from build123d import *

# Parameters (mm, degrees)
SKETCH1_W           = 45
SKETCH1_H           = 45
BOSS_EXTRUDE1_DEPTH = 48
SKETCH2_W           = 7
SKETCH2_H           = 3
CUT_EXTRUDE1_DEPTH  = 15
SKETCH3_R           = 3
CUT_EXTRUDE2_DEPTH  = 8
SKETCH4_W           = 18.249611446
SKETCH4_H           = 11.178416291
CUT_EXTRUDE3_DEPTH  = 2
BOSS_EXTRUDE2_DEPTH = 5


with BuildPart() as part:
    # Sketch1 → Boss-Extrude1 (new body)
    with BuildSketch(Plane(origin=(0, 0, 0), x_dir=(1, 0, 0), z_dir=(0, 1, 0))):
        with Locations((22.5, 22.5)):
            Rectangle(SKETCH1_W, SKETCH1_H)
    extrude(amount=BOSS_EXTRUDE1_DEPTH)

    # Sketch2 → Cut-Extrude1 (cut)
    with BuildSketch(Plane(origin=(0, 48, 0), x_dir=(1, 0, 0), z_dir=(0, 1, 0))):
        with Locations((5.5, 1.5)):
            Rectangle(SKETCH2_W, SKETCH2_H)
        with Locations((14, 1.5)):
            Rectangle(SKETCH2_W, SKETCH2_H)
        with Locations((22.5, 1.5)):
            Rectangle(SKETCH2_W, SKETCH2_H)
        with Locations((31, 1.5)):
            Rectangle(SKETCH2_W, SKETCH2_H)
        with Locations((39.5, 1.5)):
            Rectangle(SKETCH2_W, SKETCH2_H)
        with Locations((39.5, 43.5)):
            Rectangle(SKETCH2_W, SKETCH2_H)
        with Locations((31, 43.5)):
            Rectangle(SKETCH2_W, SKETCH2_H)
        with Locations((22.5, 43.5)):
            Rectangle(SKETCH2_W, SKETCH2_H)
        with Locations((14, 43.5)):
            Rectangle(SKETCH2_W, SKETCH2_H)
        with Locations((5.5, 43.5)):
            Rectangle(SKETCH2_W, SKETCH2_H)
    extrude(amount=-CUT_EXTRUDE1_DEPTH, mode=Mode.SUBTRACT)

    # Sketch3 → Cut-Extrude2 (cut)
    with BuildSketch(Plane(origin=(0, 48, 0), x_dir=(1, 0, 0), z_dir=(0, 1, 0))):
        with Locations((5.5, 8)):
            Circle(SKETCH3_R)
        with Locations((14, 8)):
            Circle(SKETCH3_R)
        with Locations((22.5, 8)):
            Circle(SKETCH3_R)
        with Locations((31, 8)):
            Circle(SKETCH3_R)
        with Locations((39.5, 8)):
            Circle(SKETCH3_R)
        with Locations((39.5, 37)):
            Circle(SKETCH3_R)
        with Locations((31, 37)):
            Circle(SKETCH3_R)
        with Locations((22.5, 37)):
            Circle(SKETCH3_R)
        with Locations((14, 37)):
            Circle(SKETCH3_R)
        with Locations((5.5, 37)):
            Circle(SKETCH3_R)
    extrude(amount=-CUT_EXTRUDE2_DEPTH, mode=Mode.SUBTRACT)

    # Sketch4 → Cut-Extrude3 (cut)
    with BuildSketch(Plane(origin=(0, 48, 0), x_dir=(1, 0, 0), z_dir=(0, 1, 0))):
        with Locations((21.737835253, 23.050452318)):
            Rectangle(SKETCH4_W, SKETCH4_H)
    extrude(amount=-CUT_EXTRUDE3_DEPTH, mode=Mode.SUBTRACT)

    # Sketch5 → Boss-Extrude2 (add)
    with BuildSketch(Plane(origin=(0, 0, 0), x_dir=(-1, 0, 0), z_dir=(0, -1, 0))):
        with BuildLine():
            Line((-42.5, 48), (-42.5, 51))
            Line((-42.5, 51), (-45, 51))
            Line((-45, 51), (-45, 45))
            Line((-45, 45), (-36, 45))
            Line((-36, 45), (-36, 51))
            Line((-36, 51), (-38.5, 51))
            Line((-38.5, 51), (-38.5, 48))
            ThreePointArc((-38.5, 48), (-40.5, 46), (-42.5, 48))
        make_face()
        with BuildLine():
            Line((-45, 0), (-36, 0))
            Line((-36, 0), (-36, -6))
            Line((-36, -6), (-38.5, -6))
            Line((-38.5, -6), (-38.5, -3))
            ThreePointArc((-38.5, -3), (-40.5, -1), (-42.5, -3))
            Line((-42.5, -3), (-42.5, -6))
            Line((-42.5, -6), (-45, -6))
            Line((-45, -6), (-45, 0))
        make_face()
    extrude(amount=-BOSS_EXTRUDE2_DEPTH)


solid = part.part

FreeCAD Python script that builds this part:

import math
import FreeCAD as App
import Part
import Sketcher

doc = App.newDocument("Part")
body = doc.addObject("PartDesign::Body", "Body")

# Sketch on XZ plane
sketch1 = body.newObject("Sketcher::SketchObject", "Sketch")
sketch1.AttachmentSupport = (doc.getObject("XZ_Plane"), [""])
sketch1.MapMode = "FlatFace"
sketch1.addGeometry(Part.LineSegment(App.Vector(0, -45, 0), App.Vector(0, 0, 0)), False)
sketch1.addGeometry(Part.LineSegment(App.Vector(0, 0, 0), App.Vector(45, 0, 0)), False)
sketch1.addGeometry(Part.LineSegment(App.Vector(45, 0, 0), App.Vector(45, -45, 0)), False)
sketch1.addGeometry(Part.LineSegment(App.Vector(45, -45, 0), App.Vector(0, -45, 0)), False)
sketch1.addConstraint(Sketcher.Constraint("Coincident", 0, 2, 1, 1))
sketch1.addConstraint(Sketcher.Constraint("Coincident", 1, 2, 2, 1))
sketch1.addConstraint(Sketcher.Constraint("Coincident", 2, 2, 3, 1))
sketch1.addConstraint(Sketcher.Constraint("Coincident", 3, 2, 0, 1))
sketch1.addConstraint(Sketcher.Constraint("Vertical", 0))
sketch1.addConstraint(Sketcher.Constraint("Horizontal", 1))
sketch1.addConstraint(Sketcher.Constraint("Vertical", 2))
sketch1.addConstraint(Sketcher.Constraint("Horizontal", 3))
sketch1.addConstraint(Sketcher.Constraint("Coincident", 0, 2, -1, 1))
sketch1.addConstraint(Sketcher.Constraint("Equal", 3, 0))
sketch1.addConstraint(Sketcher.Constraint("DistanceX", 1, 1, 1, 2, 45.0))
pad1 = body.newObject("PartDesign::Pad", "Pad")
pad1.Profile = sketch1
pad1.Length = 48
pad1.Reversed = True

# Sketch on XZ plane
sketch2 = body.newObject("Sketcher::SketchObject", "Sketch001")
sketch2.AttachmentSupport = (doc.getObject("XZ_Plane"), [""])
sketch2.MapMode = "FlatFace"
sketch2.AttachmentOffset = App.Placement(App.Vector(0, 0, -48), App.Rotation())
sketch2.addGeometry(Part.LineSegment(App.Vector(2, -3, 0), App.Vector(2, 0, 0)), False)
sketch2.addGeometry(Part.LineSegment(App.Vector(2, 0, 0), App.Vector(9, 0, 0)), False)
sketch2.addGeometry(Part.LineSegment(App.Vector(9, 0, 0), App.Vector(9, -3, 0)), False)
sketch2.addGeometry(Part.LineSegment(App.Vector(9, -3, 0), App.Vector(2, -3, 0)), False)
sketch2.addGeometry(Part.LineSegment(App.Vector(10.5, -3, 0), App.Vector(10.5, 0, 0)), False)
sketch2.addGeometry(Part.LineSegment(App.Vector(10.5, 0, 0), App.Vector(17.5, 0, 0)), False)
sketch2.addGeometry(Part.LineSegment(App.Vector(17.5, 0, 0), App.Vector(17.5, -3, 0)), False)
sketch2.addGeometry(Part.LineSegment(App.Vector(17.5, -3, 0), App.Vector(10.5, -3, 0)), False)
sketch2.addGeometry(Part.LineSegment(App.Vector(19, -3, 0), App.Vector(19, 0, 0)), False)
sketch2.addGeometry(Part.LineSegment(App.Vector(19, 0, 0), App.Vector(26, 0, 0)), False)
sketch2.addGeometry(Part.LineSegment(App.Vector(26, 0, 0), App.Vector(26, -3, 0)), False)
sketch2.addGeometry(Part.LineSegment(App.Vector(26, -3, 0), App.Vector(19, -3, 0)), False)
sketch2.addGeometry(Part.LineSegment(App.Vector(27.5, -3, 0), App.Vector(27.5, 0, 0)), False)
sketch2.addGeometry(Part.LineSegment(App.Vector(27.5, 0, 0), App.Vector(34.5, 0, 0)), False)
sketch2.addGeometry(Part.LineSegment(App.Vector(34.5, 0, 0), App.Vector(34.5, -3, 0)), False)
sketch2.addGeometry(Part.LineSegment(App.Vector(34.5, -3, 0), App.Vector(27.5, -3, 0)), False)
sketch2.addGeometry(Part.LineSegment(App.Vector(36, -3, 0), App.Vector(36, 0, 0)), False)
sketch2.addGeometry(Part.LineSegment(App.Vector(36, 0, 0), App.Vector(43, 0, 0)), False)
sketch2.addGeometry(Part.LineSegment(App.Vector(43, 0, 0), App.Vector(43, -3, 0)), False)
sketch2.addGeometry(Part.LineSegment(App.Vector(43, -3, 0), App.Vector(36, -3, 0)), False)
sketch2.addGeometry(Part.LineSegment(App.Vector(36, -45, 0), App.Vector(36, -42, 0)), False)
sketch2.addGeometry(Part.LineSegment(App.Vector(36, -42, 0), App.Vector(43, -42, 0)), False)
sketch2.addGeometry(Part.LineSegment(App.Vector(43, -42, 0), App.Vector(43, -45, 0)), False)
sketch2.addGeometry(Part.LineSegment(App.Vector(43, -45, 0), App.Vector(36, -45, 0)), False)
sketch2.addGeometry(Part.LineSegment(App.Vector(27.5, -45, 0), App.Vector(27.5, -42, 0)), False)
sketch2.addGeometry(Part.LineSegment(App.Vector(27.5, -42, 0), App.Vector(34.5, -42, 0)), False)
sketch2.addGeometry(Part.LineSegment(App.Vector(34.5, -42, 0), App.Vector(34.5, -45, 0)), False)
sketch2.addGeometry(Part.LineSegment(App.Vector(34.5, -45, 0), App.Vector(27.5, -45, 0)), False)
sketch2.addGeometry(Part.LineSegment(App.Vector(19, -45, 0), App.Vector(19, -42, 0)), False)
sketch2.addGeometry(Part.LineSegment(App.Vector(19, -42, 0), App.Vector(26, -42, 0)), False)
sketch2.addGeometry(Part.LineSegment(App.Vector(26, -42, 0), App.Vector(26, -45, 0)), False)
sketch2.addGeometry(Part.LineSegment(App.Vector(26, -45, 0), App.Vector(19, -45, 0)), False)
sketch2.addGeometry(Part.LineSegment(App.Vector(10.5, -45, 0), App.Vector(10.5, -42, 0)), False)
sketch2.addGeometry(Part.LineSegment(App.Vector(10.5, -42, 0), App.Vector(17.5, -42, 0)), False)
sketch2.addGeometry(Part.LineSegment(App.Vector(17.5, -42, 0), App.Vector(17.5, -45, 0)), False)
sketch2.addGeometry(Part.LineSegment(App.Vector(17.5, -45, 0), App.Vector(10.5, -45, 0)), False)
sketch2.addGeometry(Part.LineSegment(App.Vector(2, -45, 0), App.Vector(2, -42, 0)), False)
sketch2.addGeometry(Part.LineSegment(App.Vector(2, -42, 0), App.Vector(9, -42, 0)), False)
sketch2.addGeometry(Part.LineSegment(App.Vector(9, -42, 0), App.Vector(9, -45, 0)), False)
sketch2.addGeometry(Part.LineSegment(App.Vector(9, -45, 0), App.Vector(2, -45, 0)), False)
sketch2.addConstraint(Sketcher.Constraint("Coincident", 0, 2, 1, 1))
sketch2.addConstraint(Sketcher.Constraint("Coincident", 1, 2, 2, 1))
sketch2.addConstraint(Sketcher.Constraint("Coincident", 2, 2, 3, 1))
sketch2.addConstraint(Sketcher.Constraint("Coincident", 3, 2, 0, 1))
sketch2.addConstraint(Sketcher.Constraint("Coincident", 4, 2, 5, 1))
sketch2.addConstraint(Sketcher.Constraint("Coincident", 5, 2, 6, 1))
sketch2.addConstraint(Sketcher.Constraint("Coincident", 6, 2, 7, 1))
sketch2.addConstraint(Sketcher.Constraint("Coincident", 7, 2, 4, 1))
sketch2.addConstraint(Sketcher.Constraint("Coincident", 8, 2, 9, 1))
sketch2.addConstraint(Sketcher.Constraint("Coincident", 9, 2, 10, 1))
sketch2.addConstraint(Sketcher.Constraint("Coincident", 10, 2, 11, 1))
sketch2.addConstraint(Sketcher.Constraint("Coincident", 11, 2, 8, 1))
sketch2.addConstraint(Sketcher.Constraint("Coincident", 12, 2, 13, 1))
sketch2.addConstraint(Sketcher.Constraint("Coincident", 13, 2, 14, 1))
sketch2.addConstraint(Sketcher.Constraint("Coincident", 14, 2, 15, 1))
sketch2.addConstraint(Sketcher.Constraint("Coincident", 15, 2, 12, 1))
sketch2.addConstraint(Sketcher.Constraint("Coincident", 16, 2, 17, 1))
sketch2.addConstraint(Sketcher.Constraint("Coincident", 17, 2, 18, 1))
sketch2.addConstraint(Sketcher.Constraint("Coincident", 18, 2, 19, 1))
sketch2.addConstraint(Sketcher.Constraint("Coincident", 19, 2, 16, 1))
sketch2.addConstraint(Sketcher.Constraint("Coincident", 20, 2, 21, 1))
sketch2.addConstraint(Sketcher.Constraint("Coincident", 21, 2, 22, 1))
sketch2.addConstraint(Sketcher.Constraint("Coincident", 22, 2, 23, 1))
sketch2.addConstraint(Sketcher.Constraint("Coincident", 23, 2, 20, 1))
sketch2.addConstraint(Sketcher.Constraint("Coincident", 24, 2, 25, 1))
sketch2.addConstraint(Sketcher.Constraint("Coincident", 25, 2, 26, 1))
sketch2.addConstraint(Sketcher.Constraint("Coincident", 26, 2, 27, 1))
sketch2.addConstraint(Sketcher.Constraint("Coincident", 27, 2, 24, 1))
sketch2.addConstraint(Sketcher.Constraint("Coincident", 28, 2, 29, 1))
sketch2.addConstraint(Sketcher.Constraint("Coincident", 29, 2, 30, 1))
sketch2.addConstraint(Sketcher.Constraint("Coincident", 30, 2, 31, 1))
sketch2.addConstraint(Sketcher.Constraint("Coincident", 31, 2, 28, 1))
sketch2.addConstraint(Sketcher.Constraint("Coincident", 32, 2, 33, 1))
sketch2.addConstraint(Sketcher.Constraint("Coincident", 33, 2, 34, 1))
sketch2.addConstraint(Sketcher.Constraint("Coincident", 34, 2, 35, 1))
sketch2.addConstraint(Sketcher.Constraint("Coincident", 35, 2, 32, 1))
sketch2.addConstraint(Sketcher.Constraint("Coincident", 36, 2, 37, 1))
sketch2.addConstraint(Sketcher.Constraint("Coincident", 37, 2, 38, 1))
sketch2.addConstraint(Sketcher.Constraint("Coincident", 38, 2, 39, 1))
sketch2.addConstraint(Sketcher.Constraint("Coincident", 39, 2, 36, 1))
sketch2.addConstraint(Sketcher.Constraint("Vertical", 0))
sketch2.addConstraint(Sketcher.Constraint("Horizontal", 1))
sketch2.addConstraint(Sketcher.Constraint("Vertical", 2))
sketch2.addConstraint(Sketcher.Constraint("Horizontal", 3))
sketch2.addConstraint(Sketcher.Constraint("Vertical", 4))
sketch2.addConstraint(Sketcher.Constraint("Horizontal", 5))
sketch2.addConstraint(Sketcher.Constraint("Vertical", 6))
sketch2.addConstraint(Sketcher.Constraint("Horizontal", 7))
sketch2.addConstraint(Sketcher.Constraint("Vertical", 8))
sketch2.addConstraint(Sketcher.Constraint("Horizontal", 9))
sketch2.addConstraint(Sketcher.Constraint("Vertical", 10))
sketch2.addConstraint(Sketcher.Constraint("Horizontal", 11))
sketch2.addConstraint(Sketcher.Constraint("Vertical", 12))
sketch2.addConstraint(Sketcher.Constraint("Horizontal", 13))
sketch2.addConstraint(Sketcher.Constraint("Vertical", 14))
sketch2.addConstraint(Sketcher.Constraint("Horizontal", 15))
sketch2.addConstraint(Sketcher.Constraint("Vertical", 16))
sketch2.addConstraint(Sketcher.Constraint("Horizontal", 17))
sketch2.addConstraint(Sketcher.Constraint("Vertical", 18))
sketch2.addConstraint(Sketcher.Constraint("Horizontal", 19))
sketch2.addConstraint(Sketcher.Constraint("Vertical", 20))
sketch2.addConstraint(Sketcher.Constraint("Horizontal", 21))
sketch2.addConstraint(Sketcher.Constraint("Vertical", 22))
sketch2.addConstraint(Sketcher.Constraint("Horizontal", 23))
sketch2.addConstraint(Sketcher.Constraint("Vertical", 24))
sketch2.addConstraint(Sketcher.Constraint("Horizontal", 25))
sketch2.addConstraint(Sketcher.Constraint("Vertical", 26))
sketch2.addConstraint(Sketcher.Constraint("Horizontal", 27))
sketch2.addConstraint(Sketcher.Constraint("Vertical", 28))
sketch2.addConstraint(Sketcher.Constraint("Horizontal", 29))
sketch2.addConstraint(Sketcher.Constraint("Vertical", 30))
sketch2.addConstraint(Sketcher.Constraint("Horizontal", 31))
sketch2.addConstraint(Sketcher.Constraint("Vertical", 32))
sketch2.addConstraint(Sketcher.Constraint("Horizontal", 33))
sketch2.addConstraint(Sketcher.Constraint("Vertical", 34))
sketch2.addConstraint(Sketcher.Constraint("Horizontal", 35))
sketch2.addConstraint(Sketcher.Constraint("Vertical", 36))
sketch2.addConstraint(Sketcher.Constraint("Horizontal", 37))
sketch2.addConstraint(Sketcher.Constraint("Vertical", 38))
sketch2.addConstraint(Sketcher.Constraint("Horizontal", 39))
sketch2.addConstraint(Sketcher.Constraint("PointOnObject", 0, 2, -1))
sketch2.addConstraint(Sketcher.Constraint("PointOnObject", 4, 2, -1))
sketch2.addConstraint(Sketcher.Constraint("PointOnObject", 8, 2, -1))
sketch2.addConstraint(Sketcher.Constraint("PointOnObject", 12, 2, -1))
sketch2.addConstraint(Sketcher.Constraint("PointOnObject", 16, 2, -1))
sketch2.addConstraint(Sketcher.Constraint("Horizontal", 3, 2, 6, 2))
sketch2.addConstraint(Sketcher.Constraint("Horizontal", 7, 2, 10, 2))
sketch2.addConstraint(Sketcher.Constraint("Horizontal", 11, 2, 14, 2))
sketch2.addConstraint(Sketcher.Constraint("Horizontal", 15, 2, 18, 2))
sketch2.addConstraint(Sketcher.Constraint("Horizontal", 21, 2, 24, 2))
sketch2.addConstraint(Sketcher.Constraint("Horizontal", 23, 2, 26, 2))
sketch2.addConstraint(Sketcher.Constraint("Horizontal", 25, 2, 28, 2))
sketch2.addConstraint(Sketcher.Constraint("Horizontal", 27, 2, 30, 2))
sketch2.addConstraint(Sketcher.Constraint("Horizontal", 29, 2, 32, 2))
sketch2.addConstraint(Sketcher.Constraint("Horizontal", 31, 2, 34, 2))
sketch2.addConstraint(Sketcher.Constraint("Horizontal", 33, 2, 36, 2))
sketch2.addConstraint(Sketcher.Constraint("Horizontal", 35, 2, 38, 2))
sketch2.addConstraint(Sketcher.Constraint("Vertical", 19, 2, 20, 2))
sketch2.addConstraint(Sketcher.Constraint("Vertical", 18, 2, 21, 2))
sketch2.addConstraint(Sketcher.Constraint("Vertical", 15, 2, 24, 2))
sketch2.addConstraint(Sketcher.Constraint("Vertical", 14, 2, 25, 2))
sketch2.addConstraint(Sketcher.Constraint("Vertical", 11, 2, 28, 2))
sketch2.addConstraint(Sketcher.Constraint("Vertical", 10, 2, 29, 2))
sketch2.addConstraint(Sketcher.Constraint("Vertical", 7, 2, 32, 2))
sketch2.addConstraint(Sketcher.Constraint("Vertical", 6, 2, 33, 2))
sketch2.addConstraint(Sketcher.Constraint("Vertical", 3, 2, 36, 2))
sketch2.addConstraint(Sketcher.Constraint("Vertical", 2, 2, 37, 2))
sketch2.addConstraint(Sketcher.Constraint("Equal", 3, 5))
sketch2.addConstraint(Sketcher.Constraint("Equal", 7, 9))
sketch2.addConstraint(Sketcher.Constraint("Equal", 11, 13))
sketch2.addConstraint(Sketcher.Constraint("Equal", 15, 17))
sketch2.addConstraint(Sketcher.Constraint("Equal", 18, 20))
sketch2.addConstraint(Sketcher.Constraint("DistanceX", 1, 1, 1, 2, 7.0))
sketch2.addConstraint(Sketcher.Constraint("DistanceY", 0, 1, 0, 2, 3.0))
sketch2.addConstraint(Sketcher.Constraint("DistanceX", -1, 1, 0, 2, 2.0))
sketch2.addConstraint(Sketcher.Constraint("DistanceX", -1, 1, 8, 2, 19.0))
sketch2.addConstraint(Sketcher.Constraint("DistanceX", -1, 1, 16, 2, 36.0))
sketch2.addConstraint(Sketcher.Constraint("DistanceY", 20, 2, -1, 1, 42.0))
sketch2.addConstraint(Sketcher.Constraint("DistanceX", 5, 2, 12, 2, 10.0))
sketch2.addConstraint(Sketcher.Constraint("DistanceX", -1, 1, 4, 2, 10.5))
pocket1 = body.newObject("PartDesign::Pocket", "Pocket")
pocket1.Profile = sketch2
pocket1.Length = 15
pocket1.Reversed = True

# Sketch on XZ plane
sketch3 = body.newObject("Sketcher::SketchObject", "Sketch002")
sketch3.AttachmentSupport = (doc.getObject("XZ_Plane"), [""])
sketch3.MapMode = "FlatFace"
sketch3.AttachmentOffset = App.Placement(App.Vector(0, 0, -48), App.Rotation())
sketch3.addGeometry(Part.Circle(App.Vector(5.5, -8, 0), App.Vector(0, 0, 1), 3), False)
sketch3.addGeometry(Part.Circle(App.Vector(14, -8, 0), App.Vector(0, 0, 1), 3), False)
sketch3.addGeometry(Part.Circle(App.Vector(22.5, -8, 0), App.Vector(0, 0, 1), 3), False)
sketch3.addGeometry(Part.Circle(App.Vector(31, -8, 0), App.Vector(0, 0, 1), 3), False)
sketch3.addGeometry(Part.Circle(App.Vector(39.5, -8, 0), App.Vector(0, 0, 1), 3), False)
sketch3.addGeometry(Part.Circle(App.Vector(39.5, -37, 0), App.Vector(0, 0, 1), 3), False)
sketch3.addGeometry(Part.Circle(App.Vector(31, -37, 0), App.Vector(0, 0, 1), 3), False)
sketch3.addGeometry(Part.Circle(App.Vector(22.5, -37, 0), App.Vector(0, 0, 1), 3), False)
sketch3.addGeometry(Part.Circle(App.Vector(14, -37, 0), App.Vector(0, 0, 1), 3), False)
sketch3.addGeometry(Part.Circle(App.Vector(5.5, -37, 0), App.Vector(0, 0, 1), 3), False)
sketch3.addConstraint(Sketcher.Constraint("Equal", 0, 1))
sketch3.addConstraint(Sketcher.Constraint("Equal", 1, 2))
sketch3.addConstraint(Sketcher.Constraint("Equal", 2, 3))
sketch3.addConstraint(Sketcher.Constraint("Equal", 3, 4))
sketch3.addConstraint(Sketcher.Constraint("Equal", 4, 5))
sketch3.addConstraint(Sketcher.Constraint("Equal", 5, 6))
sketch3.addConstraint(Sketcher.Constraint("Equal", 6, 7))
sketch3.addConstraint(Sketcher.Constraint("Equal", 7, 8))
sketch3.addConstraint(Sketcher.Constraint("Equal", 8, 9))
sketch3.addConstraint(Sketcher.Constraint("Horizontal", 0, 3, 1, 3))
sketch3.addConstraint(Sketcher.Constraint("Horizontal", 1, 3, 2, 3))
sketch3.addConstraint(Sketcher.Constraint("Horizontal", 2, 3, 3, 3))
sketch3.addConstraint(Sketcher.Constraint("Horizontal", 3, 3, 4, 3))
sketch3.addConstraint(Sketcher.Constraint("Horizontal", 5, 3, 6, 3))
sketch3.addConstraint(Sketcher.Constraint("Horizontal", 6, 3, 7, 3))
sketch3.addConstraint(Sketcher.Constraint("Horizontal", 7, 3, 8, 3))
sketch3.addConstraint(Sketcher.Constraint("Horizontal", 8, 3, 9, 3))
sketch3.addConstraint(Sketcher.Constraint("Vertical", 4, 3, 5, 3))
sketch3.addConstraint(Sketcher.Constraint("Vertical", 3, 3, 6, 3))
sketch3.addConstraint(Sketcher.Constraint("Vertical", 2, 3, 7, 3))
sketch3.addConstraint(Sketcher.Constraint("Vertical", 1, 3, 8, 3))
sketch3.addConstraint(Sketcher.Constraint("Vertical", 0, 3, 9, 3))
sketch3.addConstraint(Sketcher.Constraint("Diameter", 0, 6.0))
sketch3.addConstraint(Sketcher.Constraint("DistanceY", 0, 3, -1, 1, 8.0))
sketch3.addConstraint(Sketcher.Constraint("DistanceX", -1, 1, 1, 3, 14.0))
sketch3.addConstraint(Sketcher.Constraint("DistanceX", -1, 1, 3, 3, 31.0))
sketch3.addConstraint(Sketcher.Constraint("DistanceY", 5, 3, -1, 1, 37.0))
sketch3.addConstraint(Sketcher.Constraint("DistanceX", 0, 3, 2, 3, 17.0))
sketch3.addConstraint(Sketcher.Constraint("DistanceX", 2, 3, 4, 3, 17.0))
sketch3.addConstraint(Sketcher.Constraint("DistanceX", -1, 1, 0, 3, 5.5))
pocket2 = body.newObject("PartDesign::Pocket", "Pocket001")
pocket2.Profile = sketch3
pocket2.Length = 8
pocket2.Reversed = True

# Sketch on XZ plane
sketch4 = body.newObject("Sketcher::SketchObject", "Sketch003")
sketch4.AttachmentSupport = (doc.getObject("XZ_Plane"), [""])
sketch4.MapMode = "FlatFace"
sketch4.AttachmentOffset = App.Placement(App.Vector(0, 0, -48), App.Rotation())
sketch4.addGeometry(Part.LineSegment(App.Vector(13, -29, 0), App.Vector(13, -17, 0)), False)
sketch4.addGeometry(Part.LineSegment(App.Vector(13, -17, 0), App.Vector(31, -17, 0)), False)
sketch4.addGeometry(Part.LineSegment(App.Vector(31, -17, 0), App.Vector(31, -29, 0)), False)
sketch4.addGeometry(Part.LineSegment(App.Vector(31, -29, 0), App.Vector(13, -29, 0)), False)
sketch4.addConstraint(Sketcher.Constraint("Coincident", 0, 2, 1, 1))
sketch4.addConstraint(Sketcher.Constraint("Coincident", 1, 2, 2, 1))
sketch4.addConstraint(Sketcher.Constraint("Coincident", 2, 2, 3, 1))
sketch4.addConstraint(Sketcher.Constraint("Coincident", 3, 2, 0, 1))
sketch4.addConstraint(Sketcher.Constraint("Vertical", 0))
sketch4.addConstraint(Sketcher.Constraint("Horizontal", 1))
sketch4.addConstraint(Sketcher.Constraint("Vertical", 2))
sketch4.addConstraint(Sketcher.Constraint("Horizontal", 3))
sketch4.addConstraint(Sketcher.Constraint("DistanceX", 1, 1, 1, 2, 18.249611))
sketch4.addConstraint(Sketcher.Constraint("DistanceY", 0, 1, 0, 2, 11.178416))
sketch4.addConstraint(Sketcher.Constraint("DistanceX", -1, 1, 0, 2, 12.61303))
sketch4.addConstraint(Sketcher.Constraint("DistanceY", 2, 2, -1, 1, 28.63966))
pocket3 = body.newObject("PartDesign::Pocket", "Pocket002")
pocket3.Profile = sketch4
pocket3.Length = 2
pocket3.Reversed = True

# Sketch on XZ plane
sketch5 = body.newObject("Sketcher::SketchObject", "Sketch004")
sketch5.AttachmentSupport = (doc.getObject("XZ_Plane"), [""])
sketch5.MapMode = "FlatFace"
sketch5.addGeometry(Part.LineSegment(App.Vector(42.5, -48, 0), App.Vector(42.5, -51, 0)), False)
sketch5.addGeometry(Part.LineSegment(App.Vector(42.5, -51, 0), App.Vector(45, -51, 0)), False)
sketch5.addGeometry(Part.LineSegment(App.Vector(45, -51, 0), App.Vector(45, -45, 0)), False)
sketch5.addGeometry(Part.LineSegment(App.Vector(45, -45, 0), App.Vector(36, -45, 0)), False)
sketch5.addGeometry(Part.LineSegment(App.Vector(36, -45, 0), App.Vector(36, -51, 0)), False)
sketch5.addGeometry(Part.LineSegment(App.Vector(36, -51, 0), App.Vector(38.5, -51, 0)), False)
sketch5.addGeometry(Part.LineSegment(App.Vector(38.5, -51, 0), App.Vector(38.5, -48, 0)), False)
sketch5.addGeometry(Part.ArcOfCircle(Part.Circle(App.Vector(40.5, -48, 0), App.Vector(0, 0, 1), 2), math.radians(0), math.radians(180)), False)
sketch5.addGeometry(Part.LineSegment(App.Vector(36, 0, 0), App.Vector(45, 0, 0)), False)
sketch5.addGeometry(Part.LineSegment(App.Vector(45, 0, 0), App.Vector(45, 6, 0)), False)
sketch5.addGeometry(Part.LineSegment(App.Vector(45, 6, 0), App.Vector(42.5, 6, 0)), False)
sketch5.addGeometry(Part.LineSegment(App.Vector(42.5, 6, 0), App.Vector(42.5, 3, 0)), False)
sketch5.addGeometry(Part.ArcOfCircle(Part.Circle(App.Vector(40.5, 3, 0), App.Vector(0, 0, 1), 2), math.radians(180), math.radians(360)), False)
sketch5.addGeometry(Part.LineSegment(App.Vector(38.5, 3, 0), App.Vector(38.5, 6, 0)), False)
sketch5.addGeometry(Part.LineSegment(App.Vector(38.5, 6, 0), App.Vector(36, 6, 0)), False)
sketch5.addGeometry(Part.LineSegment(App.Vector(36, 6, 0), App.Vector(36, 0, 0)), False)
sketch5.addConstraint(Sketcher.Constraint("Coincident", 0, 2, 1, 1))
sketch5.addConstraint(Sketcher.Constraint("Coincident", 1, 2, 2, 1))
sketch5.addConstraint(Sketcher.Constraint("Coincident", 2, 2, 3, 1))
sketch5.addConstraint(Sketcher.Constraint("Coincident", 3, 2, 4, 1))
sketch5.addConstraint(Sketcher.Constraint("Coincident", 4, 2, 5, 1))
sketch5.addConstraint(Sketcher.Constraint("Coincident", 5, 2, 6, 1))
sketch5.addConstraint(Sketcher.Constraint("Tangent", 6, 2, 7, 2))
sketch5.addConstraint(Sketcher.Constraint("Tangent", 7, 1, 0, 1))
sketch5.addConstraint(Sketcher.Constraint("Coincident", 8, 2, 9, 1))
sketch5.addConstraint(Sketcher.Constraint("Coincident", 9, 2, 10, 1))
sketch5.addConstraint(Sketcher.Constraint("Coincident", 10, 2, 11, 1))
sketch5.addConstraint(Sketcher.Constraint("Tangent", 11, 2, 12, 2))
sketch5.addConstraint(Sketcher.Constraint("Tangent", 12, 1, 13, 1))
sketch5.addConstraint(Sketcher.Constraint("Coincident", 13, 2, 14, 1))
sketch5.addConstraint(Sketcher.Constraint("Coincident", 14, 2, 15, 1))
sketch5.addConstraint(Sketcher.Constraint("Coincident", 15, 2, 8, 1))
sketch5.addConstraint(Sketcher.Constraint("Vertical", 0))
sketch5.addConstraint(Sketcher.Constraint("Horizontal", 1))
sketch5.addConstraint(Sketcher.Constraint("Vertical", 2))
sketch5.addConstraint(Sketcher.Constraint("Horizontal", 3))
sketch5.addConstraint(Sketcher.Constraint("Vertical", 4))
sketch5.addConstraint(Sketcher.Constraint("Horizontal", 5))
sketch5.addConstraint(Sketcher.Constraint("Vertical", 6))
sketch5.addConstraint(Sketcher.Constraint("Horizontal", 8))
sketch5.addConstraint(Sketcher.Constraint("Vertical", 9))
sketch5.addConstraint(Sketcher.Constraint("Horizontal", 10))
sketch5.addConstraint(Sketcher.Constraint("Vertical", 11))
sketch5.addConstraint(Sketcher.Constraint("Vertical", 13))
sketch5.addConstraint(Sketcher.Constraint("Horizontal", 14))
sketch5.addConstraint(Sketcher.Constraint("Vertical", 15))
sketch5.addConstraint(Sketcher.Constraint("Equal", 7, 12))
sketch5.addConstraint(Sketcher.Constraint("PointOnObject", 8, 2, -1))
sketch5.addConstraint(Sketcher.Constraint("Horizontal", 1, 2, 4, 2))
sketch5.addConstraint(Sketcher.Constraint("Horizontal", 10, 2, 13, 2))
sketch5.addConstraint(Sketcher.Constraint("Vertical", 7, 3, 12, 3))
sketch5.addConstraint(Sketcher.Constraint("Vertical", 2, 2, 8, 2))
sketch5.addConstraint(Sketcher.Constraint("Vertical", 4, 2, 14, 2))
sketch5.addConstraint(Sketcher.Constraint("Equal", 1, 5))
sketch5.addConstraint(Sketcher.Constraint("Equal", 4, 9))
sketch5.addConstraint(Sketcher.Constraint("Equal", 6, 11))
sketch5.addConstraint(Sketcher.Constraint("Radius", 7, 2.0))
sketch5.addConstraint(Sketcher.Constraint("DistanceX", 3, 2, 3, 1, 9.0))
sketch5.addConstraint(Sketcher.Constraint("DistanceY", 0, 2, 0, 1, 3.0))
sketch5.addConstraint(Sketcher.Constraint("DistanceY", 2, 1, 2, 2, 6.0))
sketch5.addConstraint(Sketcher.Constraint("DistanceY", 7, 3, -1, 1, 48.0))
sketch5.addConstraint(Sketcher.Constraint("DistanceX", -1, 1, 1, 2, 45.0))
pad2 = body.newObject("PartDesign::Pad", "Pad001")
pad2.Profile = sketch5
pad2.Length = 5
pad2.Reversed = True

doc.recompute()
